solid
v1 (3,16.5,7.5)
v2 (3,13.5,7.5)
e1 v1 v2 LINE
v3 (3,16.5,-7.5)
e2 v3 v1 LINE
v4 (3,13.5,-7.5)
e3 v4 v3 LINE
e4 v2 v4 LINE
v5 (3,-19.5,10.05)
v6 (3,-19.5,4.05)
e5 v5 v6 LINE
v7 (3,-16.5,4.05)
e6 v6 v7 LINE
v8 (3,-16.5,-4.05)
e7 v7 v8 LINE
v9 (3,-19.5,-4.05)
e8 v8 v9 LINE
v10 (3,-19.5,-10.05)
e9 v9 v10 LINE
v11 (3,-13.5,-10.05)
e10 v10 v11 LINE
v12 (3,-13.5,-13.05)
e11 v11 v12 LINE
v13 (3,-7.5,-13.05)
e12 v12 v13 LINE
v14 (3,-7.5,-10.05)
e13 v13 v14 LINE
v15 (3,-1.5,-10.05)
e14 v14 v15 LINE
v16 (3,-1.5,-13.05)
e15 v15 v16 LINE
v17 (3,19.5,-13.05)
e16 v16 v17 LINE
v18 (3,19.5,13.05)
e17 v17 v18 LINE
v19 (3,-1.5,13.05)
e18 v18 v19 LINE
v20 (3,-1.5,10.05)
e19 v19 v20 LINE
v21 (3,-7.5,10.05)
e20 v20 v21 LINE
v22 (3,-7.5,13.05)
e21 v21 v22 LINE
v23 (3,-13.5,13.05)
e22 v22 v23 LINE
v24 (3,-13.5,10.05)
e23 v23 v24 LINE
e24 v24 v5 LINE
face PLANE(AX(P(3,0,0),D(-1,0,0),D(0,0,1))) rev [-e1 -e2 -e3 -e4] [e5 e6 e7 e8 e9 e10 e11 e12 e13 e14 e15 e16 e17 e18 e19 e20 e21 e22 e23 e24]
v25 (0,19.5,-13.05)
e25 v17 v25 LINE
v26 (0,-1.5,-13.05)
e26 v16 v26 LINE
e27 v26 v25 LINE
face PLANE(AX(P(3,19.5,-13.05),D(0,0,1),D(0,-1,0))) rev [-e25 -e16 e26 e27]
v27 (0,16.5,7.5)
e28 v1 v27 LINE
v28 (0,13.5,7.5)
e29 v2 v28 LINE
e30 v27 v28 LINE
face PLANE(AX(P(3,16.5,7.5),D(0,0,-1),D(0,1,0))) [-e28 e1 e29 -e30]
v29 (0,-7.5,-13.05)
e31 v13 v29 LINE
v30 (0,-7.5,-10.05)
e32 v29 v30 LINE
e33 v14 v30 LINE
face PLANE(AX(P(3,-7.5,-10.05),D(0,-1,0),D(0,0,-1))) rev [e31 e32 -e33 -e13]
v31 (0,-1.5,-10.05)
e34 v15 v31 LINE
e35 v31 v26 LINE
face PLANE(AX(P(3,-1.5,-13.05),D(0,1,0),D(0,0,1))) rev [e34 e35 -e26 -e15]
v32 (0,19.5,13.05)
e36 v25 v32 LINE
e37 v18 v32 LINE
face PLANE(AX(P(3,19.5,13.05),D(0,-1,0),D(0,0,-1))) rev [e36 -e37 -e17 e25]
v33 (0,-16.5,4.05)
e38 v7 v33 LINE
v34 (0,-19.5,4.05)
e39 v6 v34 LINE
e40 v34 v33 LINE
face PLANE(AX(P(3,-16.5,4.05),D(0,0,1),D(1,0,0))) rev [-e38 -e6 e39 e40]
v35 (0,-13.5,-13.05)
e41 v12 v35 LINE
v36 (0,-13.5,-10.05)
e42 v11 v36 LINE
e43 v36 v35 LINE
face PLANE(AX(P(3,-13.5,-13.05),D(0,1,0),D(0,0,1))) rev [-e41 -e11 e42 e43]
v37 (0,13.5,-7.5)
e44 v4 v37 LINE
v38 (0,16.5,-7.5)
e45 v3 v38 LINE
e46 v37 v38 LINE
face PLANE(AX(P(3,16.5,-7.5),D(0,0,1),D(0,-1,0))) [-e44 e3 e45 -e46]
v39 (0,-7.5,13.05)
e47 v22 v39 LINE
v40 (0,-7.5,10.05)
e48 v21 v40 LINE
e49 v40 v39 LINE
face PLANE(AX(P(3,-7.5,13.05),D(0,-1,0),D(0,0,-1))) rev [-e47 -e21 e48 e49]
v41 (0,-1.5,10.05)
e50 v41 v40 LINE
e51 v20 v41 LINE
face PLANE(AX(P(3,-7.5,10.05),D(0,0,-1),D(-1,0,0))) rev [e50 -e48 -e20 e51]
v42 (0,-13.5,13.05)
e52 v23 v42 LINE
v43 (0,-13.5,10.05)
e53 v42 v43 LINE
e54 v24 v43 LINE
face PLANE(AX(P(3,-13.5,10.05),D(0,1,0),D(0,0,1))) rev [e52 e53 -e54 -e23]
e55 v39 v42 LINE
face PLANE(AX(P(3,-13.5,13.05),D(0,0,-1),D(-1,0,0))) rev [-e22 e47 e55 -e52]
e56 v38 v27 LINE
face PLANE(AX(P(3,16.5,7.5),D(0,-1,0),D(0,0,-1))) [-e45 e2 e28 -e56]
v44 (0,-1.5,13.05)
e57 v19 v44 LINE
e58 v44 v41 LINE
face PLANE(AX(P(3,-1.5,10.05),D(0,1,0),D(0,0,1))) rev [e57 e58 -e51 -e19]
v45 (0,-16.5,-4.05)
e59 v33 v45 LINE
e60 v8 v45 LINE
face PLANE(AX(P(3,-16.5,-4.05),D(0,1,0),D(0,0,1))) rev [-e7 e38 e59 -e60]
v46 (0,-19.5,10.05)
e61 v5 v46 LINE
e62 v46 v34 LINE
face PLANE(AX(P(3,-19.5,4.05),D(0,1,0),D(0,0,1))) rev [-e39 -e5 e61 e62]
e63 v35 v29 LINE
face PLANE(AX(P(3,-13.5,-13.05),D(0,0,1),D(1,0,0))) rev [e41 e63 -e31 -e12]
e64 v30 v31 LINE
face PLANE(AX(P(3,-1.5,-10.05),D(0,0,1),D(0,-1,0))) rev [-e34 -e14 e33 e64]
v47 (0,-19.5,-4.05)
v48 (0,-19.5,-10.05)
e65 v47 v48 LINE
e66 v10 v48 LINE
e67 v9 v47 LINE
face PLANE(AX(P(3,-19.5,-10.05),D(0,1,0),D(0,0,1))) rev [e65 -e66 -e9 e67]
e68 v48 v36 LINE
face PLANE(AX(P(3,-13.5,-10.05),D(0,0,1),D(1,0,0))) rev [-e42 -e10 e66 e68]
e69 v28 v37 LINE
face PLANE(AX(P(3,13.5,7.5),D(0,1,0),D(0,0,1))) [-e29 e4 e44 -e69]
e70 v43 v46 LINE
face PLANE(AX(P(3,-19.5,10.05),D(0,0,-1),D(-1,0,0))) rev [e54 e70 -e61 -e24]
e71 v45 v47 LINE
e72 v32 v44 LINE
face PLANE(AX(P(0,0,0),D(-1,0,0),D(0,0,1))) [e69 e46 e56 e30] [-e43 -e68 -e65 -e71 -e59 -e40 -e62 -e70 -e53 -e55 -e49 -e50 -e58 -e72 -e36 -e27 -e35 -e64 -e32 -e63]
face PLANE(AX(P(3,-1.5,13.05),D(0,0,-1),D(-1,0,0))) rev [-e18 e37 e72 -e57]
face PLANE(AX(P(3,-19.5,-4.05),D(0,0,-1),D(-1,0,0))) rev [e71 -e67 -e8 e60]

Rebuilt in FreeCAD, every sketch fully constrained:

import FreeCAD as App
import Part
import Sketcher
from FreeCAD import Vector


def add_polygon(sketch, points):
    """Adds a closed chain of lines whose ends are joined by coincident constraints."""
    first, n = sketch.GeometryCount, len(points)
    for a, b in zip(points, points[1:] + points[:1]):
        sketch.addGeometry(Part.LineSegment(App.Vector(*a, 0), App.Vector(*b, 0)), False)
    for i in range(n):
        sketch.addConstraint(Sketcher.Constraint("Coincident", first + i, 2, first + (i + 1) % n, 1))

doc = App.newDocument("Part")
body = doc.addObject("PartDesign::Body", "Body")

# Sketch on YZ plane
sketch1 = body.newObject("Sketcher::SketchObject", "Sketch")
sketch1.AttachmentSupport = (doc.getObject("YZ_Plane"), [""])
sketch1.MapMode = "FlatFace"
add_polygon(sketch1, [(-13.5, -10.1), (-13.5, -13.1), (-7.5, -13.1), (-7.5, -10.1), (-1.5, -10.1), (-1.5, -13.1), (19.5, -13.1), (19.5, 13.1), (-1.5, 13.1), (-1.5, 10.1), (-7.5, 10.1), (-7.5, 13.1), (-13.5, 13.1), (-13.5, 10.1), (-19.5, 10.1), (-19.5, 4), (-16.5, 4), (-16.5, -4), (-19.5, -4), (-19.5, -10.1)])  # lines 0-19
add_polygon(sketch1, [(13.5, 7.5), (16.5, 7.5), (16.5, -7.5), (13.5, -7.5)])  # lines 20-23
sketch1.addConstraint([
    Sketcher.Constraint("Vertical", 0),
    Sketcher.Constraint("Horizontal", 1),
    Sketcher.Constraint("Vertical", 2),
    Sketcher.Constraint("Horizontal", 3),
    Sketcher.Constraint("Vertical", 4),
    Sketcher.Constraint("Horizontal", 5),
    Sketcher.Constraint("Vertical", 6),
    Sketcher.Constraint("Horizontal", 7),
    Sketcher.Constraint("Vertical", 8),
    Sketcher.Constraint("Horizontal", 9),
    Sketcher.Constraint("Vertical", 10),
    Sketcher.Constraint("Horizontal", 11),
    Sketcher.Constraint("Vertical", 12),
    Sketcher.Constraint("Horizontal", 13),
    Sketcher.Constraint("Vertical", 14),
    Sketcher.Constraint("Horizontal", 15),
    Sketcher.Constraint("Vertical", 16),
    Sketcher.Constraint("Horizontal", 17),
    Sketcher.Constraint("Vertical", 18),
    Sketcher.Constraint("Horizontal", 19),
    Sketcher.Constraint("Horizontal", 20),
    Sketcher.Constraint("Vertical", 21),
    Sketcher.Constraint("Horizontal", 22),
    Sketcher.Constraint("Vertical", 23),
    Sketcher.Constraint("Symmetric", 4, 2, 7, 2, -1),
    Sketcher.Constraint("Symmetric", 2, 2, 9, 2, -1),
    Sketcher.Constraint("Symmetric", 0, 2, 11, 2, -1),
    Sketcher.Constraint("Symmetric", 14, 2, 17, 2, -1),
    Sketcher.Constraint("Horizontal", 1, 2, 4, 2),
    Sketcher.Constraint("Horizontal", 9, 2, 12, 2),
    Sketcher.Constraint("Horizontal", 3, 2, 18, 2),
    Sketcher.Constraint("Equal", 1, 3),
    Sketcher.Constraint("Equal", 11, 13),
    Sketcher.Constraint("Equal", 17, 20),
    Sketcher.Constraint("Equal", 22, 0),
    Sketcher.Constraint("Equal", 19, 14),
    Sketcher.Constraint("DistanceX", 1, 1, 1, 2, 6.0),
    Sketcher.Constraint("DistanceX", 5, 1, 5, 2, 21.0),
    Sketcher.Constraint("DistanceX", 15, 1, 15, 2, 3.0),
    Sketcher.Constraint("DistanceY", 21, 2, 21, 1, 15.0),
    Sketcher.Constraint("DistanceY", 6, 1, 6, 2, 26.1),
    Sketcher.Constraint("DistanceX", 20, 2, 6, 2, 3.0),
    Sketcher.Constraint("DistanceX", 0, 2, -1, 1, 13.5),
    Sketcher.Constraint("DistanceY", -1, 1, 20, 2, 7.5),
])
pad1 = body.newObject("PartDesign::Pad", "Pad")
pad1.Profile = sketch1
pad1.Length = 3

doc.recompute()
